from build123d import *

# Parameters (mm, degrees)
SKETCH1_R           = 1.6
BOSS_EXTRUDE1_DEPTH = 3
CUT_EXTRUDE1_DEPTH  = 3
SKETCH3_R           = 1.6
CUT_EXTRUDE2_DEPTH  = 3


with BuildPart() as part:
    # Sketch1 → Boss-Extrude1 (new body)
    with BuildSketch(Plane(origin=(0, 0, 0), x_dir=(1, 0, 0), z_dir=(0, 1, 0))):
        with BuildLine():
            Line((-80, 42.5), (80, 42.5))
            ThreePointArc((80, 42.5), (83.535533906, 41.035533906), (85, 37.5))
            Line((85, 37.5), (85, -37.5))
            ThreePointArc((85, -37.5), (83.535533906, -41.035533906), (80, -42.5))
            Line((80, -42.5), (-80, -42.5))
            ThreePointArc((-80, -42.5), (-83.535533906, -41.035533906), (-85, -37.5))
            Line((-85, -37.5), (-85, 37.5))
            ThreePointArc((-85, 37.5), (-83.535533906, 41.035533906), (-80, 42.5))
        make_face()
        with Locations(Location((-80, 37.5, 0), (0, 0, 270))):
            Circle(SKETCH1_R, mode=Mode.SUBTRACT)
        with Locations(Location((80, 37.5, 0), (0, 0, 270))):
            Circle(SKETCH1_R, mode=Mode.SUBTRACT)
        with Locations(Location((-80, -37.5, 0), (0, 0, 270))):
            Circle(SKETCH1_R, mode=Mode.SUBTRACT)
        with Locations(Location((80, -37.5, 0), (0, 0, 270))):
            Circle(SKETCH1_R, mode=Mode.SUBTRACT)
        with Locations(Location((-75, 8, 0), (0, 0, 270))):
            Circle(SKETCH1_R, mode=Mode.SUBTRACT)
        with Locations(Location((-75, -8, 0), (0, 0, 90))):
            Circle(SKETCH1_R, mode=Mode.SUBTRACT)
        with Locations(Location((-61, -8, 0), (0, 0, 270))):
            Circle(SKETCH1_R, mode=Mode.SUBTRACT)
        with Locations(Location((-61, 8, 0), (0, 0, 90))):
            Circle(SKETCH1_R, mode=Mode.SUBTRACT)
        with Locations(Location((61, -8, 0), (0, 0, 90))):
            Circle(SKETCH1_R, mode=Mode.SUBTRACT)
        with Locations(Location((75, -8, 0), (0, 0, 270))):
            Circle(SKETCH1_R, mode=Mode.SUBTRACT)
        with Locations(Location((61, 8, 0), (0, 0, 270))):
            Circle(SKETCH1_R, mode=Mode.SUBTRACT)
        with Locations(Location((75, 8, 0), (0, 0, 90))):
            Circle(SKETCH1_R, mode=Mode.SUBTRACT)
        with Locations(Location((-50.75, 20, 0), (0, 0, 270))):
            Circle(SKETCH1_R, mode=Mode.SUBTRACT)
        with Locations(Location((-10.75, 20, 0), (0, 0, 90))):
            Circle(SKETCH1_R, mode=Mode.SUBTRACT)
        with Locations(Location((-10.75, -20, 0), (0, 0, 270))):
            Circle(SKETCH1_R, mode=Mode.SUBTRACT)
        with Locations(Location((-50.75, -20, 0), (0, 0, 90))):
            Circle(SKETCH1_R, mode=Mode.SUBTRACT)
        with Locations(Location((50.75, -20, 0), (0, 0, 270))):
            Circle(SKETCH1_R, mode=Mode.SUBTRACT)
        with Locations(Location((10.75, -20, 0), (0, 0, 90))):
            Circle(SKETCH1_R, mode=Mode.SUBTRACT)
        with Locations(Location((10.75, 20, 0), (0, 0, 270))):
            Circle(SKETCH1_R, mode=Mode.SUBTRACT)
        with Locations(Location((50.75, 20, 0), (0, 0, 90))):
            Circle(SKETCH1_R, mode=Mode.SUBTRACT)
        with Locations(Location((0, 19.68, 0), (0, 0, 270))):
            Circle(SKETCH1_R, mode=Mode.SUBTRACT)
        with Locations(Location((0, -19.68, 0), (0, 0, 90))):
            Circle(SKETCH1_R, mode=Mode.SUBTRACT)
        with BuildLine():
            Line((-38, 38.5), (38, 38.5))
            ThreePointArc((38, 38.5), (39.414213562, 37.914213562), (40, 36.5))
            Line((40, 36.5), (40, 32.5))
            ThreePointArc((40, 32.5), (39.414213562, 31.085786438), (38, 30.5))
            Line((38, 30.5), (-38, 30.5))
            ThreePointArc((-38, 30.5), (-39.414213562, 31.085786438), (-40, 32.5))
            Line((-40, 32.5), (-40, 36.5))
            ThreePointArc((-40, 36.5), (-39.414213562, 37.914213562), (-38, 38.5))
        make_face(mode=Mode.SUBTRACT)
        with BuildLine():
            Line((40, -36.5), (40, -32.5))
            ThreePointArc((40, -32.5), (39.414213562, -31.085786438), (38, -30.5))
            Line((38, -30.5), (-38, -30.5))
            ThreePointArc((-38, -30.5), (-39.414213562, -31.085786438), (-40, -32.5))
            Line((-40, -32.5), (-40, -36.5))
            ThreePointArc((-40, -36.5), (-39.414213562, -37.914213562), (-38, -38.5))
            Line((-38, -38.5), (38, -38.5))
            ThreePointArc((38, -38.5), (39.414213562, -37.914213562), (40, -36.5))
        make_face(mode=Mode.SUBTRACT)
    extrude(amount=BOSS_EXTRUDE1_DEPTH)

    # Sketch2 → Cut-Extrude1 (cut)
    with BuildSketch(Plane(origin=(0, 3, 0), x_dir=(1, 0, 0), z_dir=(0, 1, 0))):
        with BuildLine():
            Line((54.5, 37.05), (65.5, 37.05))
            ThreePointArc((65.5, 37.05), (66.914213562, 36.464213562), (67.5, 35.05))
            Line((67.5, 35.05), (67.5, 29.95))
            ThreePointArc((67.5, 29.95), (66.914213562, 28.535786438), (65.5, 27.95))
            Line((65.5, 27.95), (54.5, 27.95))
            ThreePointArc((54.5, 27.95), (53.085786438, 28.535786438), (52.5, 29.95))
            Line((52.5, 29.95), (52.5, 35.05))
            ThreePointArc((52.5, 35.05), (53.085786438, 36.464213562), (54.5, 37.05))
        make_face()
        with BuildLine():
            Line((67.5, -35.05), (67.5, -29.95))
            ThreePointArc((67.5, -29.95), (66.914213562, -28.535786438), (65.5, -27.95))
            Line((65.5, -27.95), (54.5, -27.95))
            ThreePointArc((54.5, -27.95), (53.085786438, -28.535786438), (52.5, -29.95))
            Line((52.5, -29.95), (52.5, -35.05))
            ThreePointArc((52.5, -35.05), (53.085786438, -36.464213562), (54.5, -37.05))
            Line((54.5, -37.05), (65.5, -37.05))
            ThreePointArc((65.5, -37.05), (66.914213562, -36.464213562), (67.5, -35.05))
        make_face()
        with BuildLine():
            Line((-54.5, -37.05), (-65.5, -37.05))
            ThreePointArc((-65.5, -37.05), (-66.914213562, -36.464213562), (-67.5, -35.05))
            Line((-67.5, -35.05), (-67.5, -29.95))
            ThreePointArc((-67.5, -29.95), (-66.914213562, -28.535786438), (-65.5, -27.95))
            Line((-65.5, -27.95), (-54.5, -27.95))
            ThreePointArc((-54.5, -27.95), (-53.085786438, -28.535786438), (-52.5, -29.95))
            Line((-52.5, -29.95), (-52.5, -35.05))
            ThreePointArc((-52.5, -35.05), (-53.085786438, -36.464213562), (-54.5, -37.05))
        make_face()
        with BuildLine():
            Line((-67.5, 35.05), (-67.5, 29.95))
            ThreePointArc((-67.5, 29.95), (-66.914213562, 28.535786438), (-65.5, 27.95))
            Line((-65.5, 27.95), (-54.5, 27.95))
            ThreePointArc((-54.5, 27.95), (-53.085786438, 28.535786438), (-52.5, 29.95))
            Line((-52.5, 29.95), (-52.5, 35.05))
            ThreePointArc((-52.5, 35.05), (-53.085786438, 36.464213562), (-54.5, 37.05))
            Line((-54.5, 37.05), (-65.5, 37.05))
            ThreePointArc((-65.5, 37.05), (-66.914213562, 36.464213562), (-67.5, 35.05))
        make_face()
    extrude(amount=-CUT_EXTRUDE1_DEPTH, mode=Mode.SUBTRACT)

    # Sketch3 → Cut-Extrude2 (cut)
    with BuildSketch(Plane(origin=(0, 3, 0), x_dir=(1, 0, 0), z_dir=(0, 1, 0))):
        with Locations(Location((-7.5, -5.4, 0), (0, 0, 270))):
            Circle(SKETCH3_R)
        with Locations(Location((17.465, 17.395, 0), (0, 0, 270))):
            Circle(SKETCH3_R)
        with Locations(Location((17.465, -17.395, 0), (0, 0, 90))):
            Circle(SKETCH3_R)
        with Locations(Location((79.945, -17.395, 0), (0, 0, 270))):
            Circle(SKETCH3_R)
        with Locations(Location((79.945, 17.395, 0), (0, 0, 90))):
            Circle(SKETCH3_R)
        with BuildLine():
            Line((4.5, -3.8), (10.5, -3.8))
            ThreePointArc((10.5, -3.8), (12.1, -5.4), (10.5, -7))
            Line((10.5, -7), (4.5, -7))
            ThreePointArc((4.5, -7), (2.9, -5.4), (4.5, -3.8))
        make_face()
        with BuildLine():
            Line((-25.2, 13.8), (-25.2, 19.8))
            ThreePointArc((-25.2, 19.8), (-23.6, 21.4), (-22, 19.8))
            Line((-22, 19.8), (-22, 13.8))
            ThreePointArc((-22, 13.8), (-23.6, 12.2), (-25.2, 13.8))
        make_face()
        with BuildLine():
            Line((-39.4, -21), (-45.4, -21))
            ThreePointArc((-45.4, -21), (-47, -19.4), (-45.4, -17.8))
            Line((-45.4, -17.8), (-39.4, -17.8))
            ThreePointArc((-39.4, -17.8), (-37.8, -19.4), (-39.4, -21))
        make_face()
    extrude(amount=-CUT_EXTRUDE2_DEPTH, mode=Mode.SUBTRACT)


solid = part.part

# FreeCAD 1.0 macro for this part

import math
import FreeCAD as App
import Part
import Sketcher

V = App.Vector

doc = App.newDocument("Part")
params = doc.addObject("Spreadsheet::Sheet", "Params")
for row, (alias, value) in enumerate([
    ("sketch1_radius", "5 mm"),
    ("sketch1_radius2", "2 mm"),
    ("sketch1_diameter", "3.2 mm"),
    ("sketch1_width", "160 mm"),
    ("sketch1_width2", "76 mm"),
    ("pad1_length", "3 mm"),
    ("sketch2_radius", "2 mm"),
    ("sketch2_width", "11 mm"),
    ("sketch2_height", "5.1 mm"),
    ("pocket1_length", "3 mm"),
    ("sketch3_diameter", "3.2 mm"),
    ("sketch3_width", "6 mm"),
    ("pocket2_length", "3 mm"),
], start=1):
    params.set(f"A{row}", alias)
    params.set(f"B{row}", "=" + value)
    params.setAlias(f"B{row}", alias)

body = doc.addObject("PartDesign::Body", "Body")

# Sketch on XZ plane
sketch1 = doc.addObject("Sketcher::SketchObject", "Sketch")
body.addObject(sketch1)
sketch1.AttachmentSupport = (doc.XZ_Plane, [""])
sketch1.MapMode = "FlatFace"
sketch1.addGeometry(Part.LineSegment(V(80, -42.5, 0), V(-80, -42.5, 0)), False)
sketch1.addGeometry(Part.ArcOfCircle(Part.Circle(V(-80, -37.5, 0), V(0, 0, 1), 5), math.radians(180), math.radians(270)), False)
sketch1.addGeometry(Part.LineSegment(V(-85, -37.5, 0), V(-85, 37.5, 0)), False)
sketch1.addGeometry(Part.ArcOfCircle(Part.Circle(V(-80, 37.5, 0), V(0, 0, 1), 5), math.radians(90), math.radians(180)), False)
sketch1.addGeometry(Part.LineSegment(V(-80, 42.5, 0), V(80, 42.5, 0)), False)
sketch1.addGeometry(Part.ArcOfCircle(Part.Circle(V(80, 37.5, 0), V(0, 0, 1), 5), math.radians(0), math.radians(90)), False)
sketch1.addGeometry(Part.LineSegment(V(85, 37.5, 0), V(85, -37.5, 0)), False)
sketch1.addGeometry(Part.ArcOfCircle(Part.Circle(V(80, -37.5, 0), V(0, 0, 1), 5), math.radians(-90), math.radians(0)), False)
sketch1.addGeometry(Part.Circle(V(80, 37.5, 0), V(0, 0, 1), 1.6), False)
sketch1.addGeometry(Part.Circle(V(50.8, 20, 0), V(0, 0, 1), 1.6), False)
sketch1.addGeometry(Part.Circle(V(10.8, 20, 0), V(0, 0, 1), 1.6), False)
sketch1.addGeometry(Part.Circle(V(75, 8, 0), V(0, 0, 1), 1.6), False)
sketch1.addGeometry(Part.Circle(V(61, 8, 0), V(0, 0, 1), 1.6), False)
sketch1.addGeometry(Part.ArcOfCircle(Part.Circle(V(38, 36.5, 0), V(0, 0, 1), 2), math.radians(0), math.radians(90)), False)
sketch1.addGeometry(Part.LineSegment(V(38, 38.5, 0), V(-38, 38.5, 0)), False)
sketch1.addGeometry(Part.ArcOfCircle(Part.Circle(V(-38, 36.5, 0), V(0, 0, 1), 2), math.radians(90), math.radians(180)), False)
sketch1.addGeometry(Part.LineSegment(V(-40, 36.5, 0), V(-40, 32.5, 0)), False)
sketch1.addGeometry(Part.ArcOfCircle(Part.Circle(V(-38, 32.5, 0), V(0, 0, 1), 2), math.radians(-180), math.radians(-90)), False)
sketch1.addGeometry(Part.LineSegment(V(-38, 30.5, 0), V(38, 30.5, 0)), False)
sketch1.addGeometry(Part.ArcOfCircle(Part.Circle(V(38, 32.5, 0), V(0, 0, 1), 2), math.radians(-90), math.radians(0)), False)
sketch1.addGeometry(Part.LineSegment(V(40, 32.5, 0), V(40, 36.5, 0)), False)
sketch1.addGeometry(Part.Circle(V(0, 19.7, 0), V(0, 0, 1), 1.6), False)
sketch1.addGeometry(Part.Circle(V(-10.8, 20, 0), V(0, 0, 1), 1.6), False)
sketch1.addGeometry(Part.Circle(V(-80, 37.5, 0), V(0, 0, 1), 1.6), False)
sketch1.addGeometry(Part.Circle(V(-50.8, 20, 0), V(0, 0, 1), 1.6), False)
sketch1.addGeometry(Part.Circle(V(-61, 8, 0), V(0, 0, 1), 1.6), False)
sketch1.addGeometry(Part.Circle(V(-75, 8, 0), V(0, 0, 1), 1.6), False)
sketch1.addGeometry(Part.Circle(V(75, -8, 0), V(0, 0, 1), 1.6), False)
sketch1.addGeometry(Part.Circle(V(61, -8, 0), V(0, 0, 1), 1.6), False)
sketch1.addGeometry(Part.Circle(V(50.8, -20, 0), V(0, 0, 1), 1.6), False)
sketch1.addGeometry(Part.Circle(V(80, -37.5, 0), V(0, 0, 1), 1.6), False)
sketch1.addGeometry(Part.Circle(V(10.8, -20, 0), V(0, 0, 1), 1.6), False)
sketch1.addGeometry(Part.Circle(V(-61, -8, 0), V(0, 0, 1), 1.6), False)
sketch1.addGeometry(Part.Circle(V(-75, -8, 0), V(0, 0, 1), 1.6), False)
sketch1.addGeometry(Part.Circle(V(0, -19.7, 0), V(0, 0, 1), 1.6), False)
sketch1.addGeometry(Part.Circle(V(-10.8, -20, 0), V(0, 0, 1), 1.6), False)
sketch1.addGeometry(Part.LineSegment(V(-38, -38.5, 0), V(38, -38.5, 0)), False)
sketch1.addGeometry(Part.ArcOfCircle(Part.Circle(V(38, -36.5, 0), V(0, 0, 1), 2), math.radians(-90), math.radians(0)), False)
sketch1.addGeometry(Part.LineSegment(V(40, -36.5, 0), V(40, -32.5, 0)), False)
sketch1.addGeometry(Part.ArcOfCircle(Part.Circle(V(38, -32.5, 0), V(0, 0, 1), 2), math.radians(0), math.radians(90)), False)
sketch1.addGeometry(Part.LineSegment(V(38, -30.5, 0), V(-38, -30.5, 0)), False)
sketch1.addGeometry(Part.ArcOfCircle(Part.Circle(V(-38, -32.5, 0), V(0, 0, 1), 2), math.radians(90), math.radians(180)), False)
sketch1.addGeometry(Part.LineSegment(V(-40, -32.5, 0), V(-40, -36.5, 0)), False)
sketch1.addGeometry(Part.ArcOfCircle(Part.Circle(V(-38, -36.5, 0), V(0, 0, 1), 2), math.radians(-180), math.radians(-90)), False)
sketch1.addGeometry(Part.Circle(V(-50.8, -20, 0), V(0, 0, 1), 1.6), False)
sketch1.addGeometry(Part.Circle(V(-80, -37.5, 0), V(0, 0, 1), 1.6), False)
sketch1.addConstraint(Sketcher.Constraint("Tangent", 0, 2, 1, 2))
sketch1.addConstraint(Sketcher.Constraint("Tangent", 1, 1, 2, 1))
sketch1.addConstraint(Sketcher.Constraint("Tangent", 2, 2, 3, 2))
sketch1.addConstraint(Sketcher.Constraint("Tangent", 3, 1, 4, 1))
sketch1.addConstraint(Sketcher.Constraint("Tangent", 4, 2, 5, 2))
sketch1.addConstraint(Sketcher.Constraint("Tangent", 5, 1, 6, 1))
sketch1.addConstraint(Sketcher.Constraint("Tangent", 6, 2, 7, 2))
sketch1.addConstraint(Sketcher.Constraint("Tangent", 7, 1, 0, 1))
sketch1.addConstraint(Sketcher.Constraint("Tangent", 13, 2, 14, 1))
sketch1.addConstraint(Sketcher.Constraint("Tangent", 14, 2, 15, 1))
sketch1.addConstraint(Sketcher.Constraint("Tangent", 15, 2, 16, 1))
sketch1.addConstraint(Sketcher.Constraint("Tangent", 16, 2, 17, 1))
sketch1.addConstraint(Sketcher.Constraint("Tangent", 17, 2, 18, 1))
sketch1.addConstraint(Sketcher.Constraint("Tangent", 18, 2, 19, 1))
sketch1.addConstraint(Sketcher.Constraint("Tangent", 19, 2, 20, 1))
sketch1.addConstraint(Sketcher.Constraint("Tangent", 20, 2, 13, 1))
sketch1.addConstraint(Sketcher.Constraint("Tangent", 36, 2, 37, 1))
sketch1.addConstraint(Sketcher.Constraint("Tangent", 37, 2, 38, 1))
sketch1.addConstraint(Sketcher.Constraint("Tangent", 38, 2, 39, 1))
sketch1.addConstraint(Sketcher.Constraint("Tangent", 39, 2, 40, 1))
sketch1.addConstraint(Sketcher.Constraint("Tangent", 40, 2, 41, 1))
sketch1.addConstraint(Sketcher.Constraint("Tangent", 41, 2, 42, 1))
sketch1.addConstraint(Sketcher.Constraint("Tangent", 42, 2, 43, 1))
sketch1.addConstraint(Sketcher.Constraint("Tangent", 43, 2, 36, 1))
sketch1.addConstraint(Sketcher.Constraint("Horizontal", 0))
sketch1.addConstraint(Sketcher.Constraint("Vertical", 2))
sketch1.addConstraint(Sketcher.Constraint("Horizontal", 4))
sketch1.addConstraint(Sketcher.Constraint("Vertical", 6))
sketch1.addConstraint(Sketcher.Constraint("Horizontal", 14))
sketch1.addConstraint(Sketcher.Constraint("Vertical", 16))
sketch1.addConstraint(Sketcher.Constraint("Horizontal", 18))
sketch1.addConstraint(Sketcher.Constraint("Vertical", 20))
sketch1.addConstraint(Sketcher.Constraint("Horizontal", 36))
sketch1.addConstraint(Sketcher.Constraint("Vertical", 38))
sketch1.addConstraint(Sketcher.Constraint("Horizontal", 40))
sketch1.addConstraint(Sketcher.Constraint("Vertical", 42))
sketch1.addConstraint(Sketcher.Constraint("Coincident", 8, 3, 5, 3))
sketch1.addConstraint(Sketcher.Constraint("Coincident", 23, 3, 3, 3))
sketch1.addConstraint(Sketcher.Constraint("Coincident", 30, 3, 7, 3))
sketch1.addConstraint(Sketcher.Constraint("Coincident", 45, 3, 1, 3))
sketch1.addConstraint(Sketcher.Constraint("Equal", 1, 3))
sketch1.addConstraint(Sketcher.Constraint("Equal", 3, 5))
sketch1.addConstraint(Sketcher.Constraint("Equal", 5, 7))
sketch1.addConstraint(Sketcher.Constraint("Equal", 8, 9))
sketch1.addConstraint(Sketcher.Constraint("Equal", 9, 10))
sketch1.addConstraint(Sketcher.Constraint("Equal", 10, 11))
sketch1.addConstraint(Sketcher.Constraint("Equal", 11, 12))
sketch1.addConstraint(Sketcher.Constraint("Equal", 13, 15))
sketch1.addConstraint(Sketcher.Constraint("Equal", 15, 17))
sketch1.addConstraint(Sketcher.Constraint("Equal", 17, 19))
sketch1.addConstraint(Sketcher.Constraint("Equal", 12, 21))
sketch1.addConstraint(Sketcher.Constraint("Equal", 21, 22))
sketch1.addConstraint(Sketcher.Constraint("Equal", 22, 23))
sketch1.addConstraint(Sketcher.Constraint("Equal", 23, 24))
sketch1.addConstraint(Sketcher.Constraint("Equal", 24, 25))
sketch1.addConstraint(Sketcher.Constraint("Equal", 25, 26))
sketch1.addConstraint(Sketcher.Constraint("Equal", 26, 27))
sketch1.addConstraint(Sketcher.Constraint("Equal", 27, 28))
sketch1.addConstraint(Sketcher.Constraint("Equal", 28, 29))
sketch1.addConstraint(Sketcher.Constraint("Equal", 29, 30))
sketch1.addConstraint(Sketcher.Constraint("Equal", 30, 31))
sketch1.addConstraint(Sketcher.Constraint("Equal", 31, 32))
sketch1.addConstraint(Sketcher.Constraint("Equal", 32, 33))
sketch1.addConstraint(Sketcher.Constraint("Equal", 33, 34))
sketch1.addConstraint(Sketcher.Constraint("Equal", 34, 35))
sketch1.addConstraint(Sketcher.Constraint("Equal", 19, 37))
sketch1.addConstraint(Sketcher.Constraint("Equal", 37, 39))
sketch1.addConstraint(Sketcher.Constraint("Equal", 39, 41))
sketch1.addConstraint(Sketcher.Constraint("Equal", 41, 43))
sketch1.addConstraint(Sketcher.Constraint("Equal", 35, 44))
sketch1.addConstraint(Sketcher.Constraint("Equal", 44, 45))
sketch1.addConstraint(Sketcher.Constraint("Symmetric", 1, 3, 5, 3, -1, 1))
sketch1.addConstraint(Sketcher.Constraint("Symmetric", 26, 3, 27, 3, -1, 1))
sketch1.addConstraint(Sketcher.Constraint("Symmetric", 25, 3, 28, 3, -1, 1))
sketch1.addConstraint(Sketcher.Constraint("Symmetric", 24, 3, 29, 3, -1, 1))
sketch1.addConstraint(Sketcher.Constraint("Symmetric", 22, 3, 31, 3, -1, 1))
sketch1.addConstraint(Sketcher.Constraint("Symmetric", 12, 3, 32, 3, -1, 1))
sketch1.addConstraint(Sketcher.Constraint("Symmetric", 11, 3, 33, 3, -1, 1))
sketch1.addConstraint(Sketcher.Constraint("Symmetric", 21, 3, 34, 3, -1, 1))
sketch1.addConstraint(Sketcher.Constraint("Symmetric", 10, 3, 35, 3, -1, 1))
sketch1.addConstraint(Sketcher.Constraint("Symmetric", 15, 3, 37, 3, -1, 1))
sketch1.addConstraint(Sketcher.Constraint("Symmetric", 19, 3, 41, 3, -1, 1))
sketch1.addConstraint(Sketcher.Constraint("Symmetric", 9, 3, 44, 3, -1, 1))
sketch1.addConstraint(Sketcher.Constraint("Symmetric", 10, 3, 22, 3, -2))
sketch1.addConstraint(Sketcher.Constraint("Symmetric", 9, 3, 24, 3, -2))
sketch1.addConstraint(Sketcher.Constraint("Symmetric", 12, 3, 25, 3, -2))
sketch1.addConstraint(Sketcher.Constraint("Symmetric", 11, 3, 26, 3, -2))
sketch1.addConstraint(Sketcher.Constraint("PointOnObject", 21, 3, -2))
sketch1.addConstraint(Sketcher.Constraint("Horizontal", 9, 3, 10, 3))
sketch1.addConstraint(Sketcher.Constraint("Horizontal", 11, 3, 12, 3))
sketch1.addConstraint(Sketcher.Constraint("Vertical", 19, 3, 37, 3))
sketch1.addConstraint(Sketcher.Constraint("Radius", 1, 5.0))
sketch1.addConstraint(Sketcher.Constraint("Radius", 13, 2.0))
sketch1.addConstraint(Sketcher.Constraint("Diameter", 8, 3.2))
sketch1.addConstraint(Sketcher.Constraint("DistanceX", 0, 2, 0, 1, 160.0))
sketch1.addConstraint(Sketcher.Constraint("DistanceX", 14, 2, 14, 1, 76.0))
sketch1.addConstraint(Sketcher.Constraint("DistanceY", 2, 1, 2, 2, 75.0))
sketch1.addConstraint(Sketcher.Constraint("DistanceY", 16, 2, 16, 1, 4.0))
sketch1.addConstraint(Sketcher.Constraint("DistanceY", -1, 1, 9, 3, 20.0))
sketch1.addConstraint(Sketcher.Constraint("DistanceX", -1, 1, 11, 3, 75.0))
sketch1.addConstraint(Sketcher.Constraint("DistanceY", -1, 1, 11, 3, 8.0))
sketch1.addConstraint(Sketcher.Constraint("DistanceX", -1, 1, 12, 3, 61.0))
sketch1.addConstraint(Sketcher.Constraint("DistanceX", 10, 3, 9, 3, 40.0))
sketch1.addConstraint(Sketcher.Constraint("DistanceY", 13, 3, 5, 3, 1.0))
sketch1.addConstraint(Sketcher.Constraint("DistanceX", 22, 3, 10, 3, 21.5))
sketch1.addConstraint(Sketcher.Constraint("DistanceY", -1, 1, 21, 3, 19.68))
sketch1.setExpression("Constraints[91]", "Params.sketch1_radius")
sketch1.setExpression("Constraints[92]", "Params.sketch1_radius2")
sketch1.setExpression("Constraints[93]", "Params.sketch1_diameter")
sketch1.setExpression("Constraints[94]", "Params.sketch1_width")
sketch1.setExpression("Constraints[95]", "Params.sketch1_width2")
pad1 = doc.addObject("PartDesign::Pad", "Pad")
body.addObject(pad1)
pad1.Profile = sketch1
pad1.setExpression("Length", "Params.pad1_length")
pad1.Reversed = True

# Sketch on XZ plane
sketch2 = doc.addObject("Sketcher::SketchObject", "Sketch001")
body.addObject(sketch2)
sketch2.AttachmentSupport = (doc.XZ_Plane, [""])
sketch2.MapMode = "FlatFace"
sketch2.AttachmentOffset = App.Placement(V(0, 0, -3), App.Rotation())
sketch2.addGeometry(Part.LineSegment(V(65.5, -37, 0), V(54.5, -37, 0)), False)
sketch2.addGeometry(Part.ArcOfCircle(Part.Circle(V(54.5, -35, 0), V(0, 0, 1), 2), math.radians(-180), math.radians(-90)), False)
sketch2.addGeometry(Part.LineSegment(V(52.5, -35, 0), V(52.5, -29.9, 0)), False)
sketch2.addGeometry(Part.ArcOfCircle(Part.Circle(V(54.5, -30, 0), V(0, 0, 1), 2), math.radians(90), math.radians(180)), False)
sketch2.addGeometry(Part.LineSegment(V(54.5, -27.9, 0), V(65.5, -27.9, 0)), False)
sketch2.addGeometry(Part.ArcOfCircle(Part.Circle(V(65.5, -30, 0), V(0, 0, 1), 2), math.radians(0), math.radians(90)), False)
sketch2.addGeometry(Part.LineSegment(V(67.5, -29.9, 0), V(67.5, -35, 0)), False)
sketch2.addGeometry(Part.ArcOfCircle(Part.Circle(V(65.5, -35, 0), V(0, 0, 1), 2), math.radians(-90), math.radians(0)), False)
sketch2.addGeometry(Part.LineSegment(V(67.5, 35, 0), V(67.5, 29.9, 0)), False)
sketch2.addGeometry(Part.ArcOfCircle(Part.Circle(V(65.5, 30, 0), V(0, 0, 1), 2), math.radians(-90), math.radians(0)), False)
sketch2.addGeometry(Part.LineSegment(V(65.5, 27.9, 0), V(54.5, 27.9, 0)), False)
sketch2.addGeometry(Part.ArcOfCircle(Part.Circle(V(54.5, 30, 0), V(0, 0, 1), 2), math.radians(-180), math.radians(-90)), False)
sketch2.addGeometry(Part.LineSegment(V(52.5, 29.9, 0), V(52.5, 35, 0)), False)
sketch2.addGeometry(Part.ArcOfCircle(Part.Circle(V(54.5, 35, 0), V(0, 0, 1), 2), math.radians(90), math.radians(180)), False)
sketch2.addGeometry(Part.LineSegment(V(54.5, 37, 0), V(65.5, 37, 0)), False)
sketch2.addGeometry(Part.ArcOfCircle(Part.Circle(V(65.5, 35, 0), V(0, 0, 1), 2), math.radians(0), math.radians(90)), False)
sketch2.addGeometry(Part.LineSegment(V(-65.5, 37, 0), V(-54.5, 37, 0)), False)
sketch2.addGeometry(Part.ArcOfCircle(Part.Circle(V(-54.5, 35, 0), V(0, 0, 1), 2), math.radians(0), math.radians(90)), False)
sketch2.addGeometry(Part.LineSegment(V(-52.5, 35, 0), V(-52.5, 29.9, 0)), False)
sketch2.addGeometry(Part.ArcOfCircle(Part.Circle(V(-54.5, 30, 0), V(0, 0, 1), 2), math.radians(-90), math.radians(0)), False)
sketch2.addGeometry(Part.LineSegment(V(-54.5, 27.9, 0), V(-65.5, 27.9, 0)), False)
sketch2.addGeometry(Part.ArcOfCircle(Part.Circle(V(-65.5, 30, 0), V(0, 0, 1), 2), math.radians(-180), math.radians(-90)), False)
sketch2.addGeometry(Part.LineSegment(V(-67.5, 29.9, 0), V(-67.5, 35, 0)), False)
sketch2.addGeometry(Part.ArcOfCircle(Part.Circle(V(-65.5, 35, 0), V(0, 0, 1), 2), math.radians(90), math.radians(180)), False)
sketch2.addGeometry(Part.LineSegment(V(-67.5, -35, 0), V(-67.5, -29.9, 0)), False)
sketch2.addGeometry(Part.ArcOfCircle(Part.Circle(V(-65.5, -30, 0), V(0, 0, 1), 2), math.radians(90), math.radians(180)), False)
sketch2.addGeometry(Part.LineSegment(V(-65.5, -27.9, 0), V(-54.5, -27.9, 0)), False)
sketch2.addGeometry(Part.ArcOfCircle(Part.Circle(V(-54.5, -30, 0), V(0, 0, 1), 2), math.radians(0), math.radians(90)), False)
sketch2.addGeometry(Part.LineSegment(V(-52.5, -29.9, 0), V(-52.5, -35, 0)), False)
sketch2.addGeometry(Part.ArcOfCircle(Part.Circle(V(-54.5, -35, 0), V(0, 0, 1), 2), math.radians(-90), math.radians(0)), False)
sketch2.addGeometry(Part.LineSegment(V(-54.5, -37, 0), V(-65.5, -37, 0)), False)
sketch2.addGeometry(Part.ArcOfCircle(Part.Circle(V(-65.5, -35, 0), V(0, 0, 1), 2), math.radians(-180), math.radians(-90)), False)
sketch2.addConstraint(Sketcher.Constraint("Tangent", 0, 2, 1, 2))
sketch2.addConstraint(Sketcher.Constraint("Tangent", 1, 1, 2, 1))
sketch2.addConstraint(Sketcher.Constraint("Tangent", 2, 2, 3, 2))
sketch2.addConstraint(Sketcher.Constraint("Tangent", 3, 1, 4, 1))
sketch2.addConstraint(Sketcher.Constraint("Tangent", 4, 2, 5, 2))
sketch2.addConstraint(Sketcher.Constraint("Tangent", 5, 1, 6, 1))
sketch2.addConstraint(Sketcher.Constraint("Tangent", 6, 2, 7, 2))
sketch2.addConstraint(Sketcher.Constraint("Tangent", 7, 1, 0, 1))
sketch2.addConstraint(Sketcher.Constraint("Tangent", 8, 2, 9, 2))
sketch2.addConstraint(Sketcher.Constraint("Tangent", 9, 1, 10, 1))
sketch2.addConstraint(Sketcher.Constraint("Tangent", 10, 2, 11, 2))
sketch2.addConstraint(Sketcher.Constraint("Tangent", 11, 1, 12, 1))
sketch2.addConstraint(Sketcher.Constraint("Tangent", 12, 2, 13, 2))
sketch2.addConstraint(Sketcher.Constraint("Tangent", 13, 1, 14, 1))
sketch2.addConstraint(Sketcher.Constraint("Tangent", 14, 2, 15, 2))
sketch2.addConstraint(Sketcher.Constraint("Tangent", 15, 1, 8, 1))
sketch2.addConstraint(Sketcher.Constraint("Tangent", 16, 2, 17, 2))
sketch2.addConstraint(Sketcher.Constraint("Tangent", 17, 1, 18, 1))
sketch2.addConstraint(Sketcher.Constraint("Tangent", 18, 2, 19, 2))
sketch2.addConstraint(Sketcher.Constraint("Tangent", 19, 1, 20, 1))
sketch2.addConstraint(Sketcher.Constraint("Tangent", 20, 2, 21, 2))
sketch2.addConstraint(Sketcher.Constraint("Tangent", 21, 1, 22, 1))
sketch2.addConstraint(Sketcher.Constraint("Tangent", 22, 2, 23, 2))
sketch2.addConstraint(Sketcher.Constraint("Tangent", 23, 1, 16, 1))
sketch2.addConstraint(Sketcher.Constraint("Tangent", 24, 2, 25, 2))
sketch2.addConstraint(Sketcher.Constraint("Tangent", 25, 1, 26, 1))
sketch2.addConstraint(Sketcher.Constraint("Tangent", 26, 2, 27, 2))
sketch2.addConstraint(Sketcher.Constraint("Tangent", 27, 1, 28, 1))
sketch2.addConstraint(Sketcher.Constraint("Tangent", 28, 2, 29, 2))
sketch2.addConstraint(Sketcher.Constraint("Tangent", 29, 1, 30, 1))
sketch2.addConstraint(Sketcher.Constraint("Tangent", 30, 2, 31, 2))
sketch2.addConstraint(Sketcher.Constraint("Tangent", 31, 1, 24, 1))
sketch2.addConstraint(Sketcher.Constraint("Horizontal", 0))
sketch2.addConstraint(Sketcher.Constraint("Vertical", 2))
sketch2.addConstraint(Sketcher.Constraint("Horizontal", 4))
sketch2.addConstraint(Sketcher.Constraint("Vertical", 6))
sketch2.addConstraint(Sketcher.Constraint("Vertical", 8))
sketch2.addConstraint(Sketcher.Constraint("Horizontal", 10))
sketch2.addConstraint(Sketcher.Constraint("Vertical", 12))
sketch2.addConstraint(Sketcher.Constraint("Horizontal", 14))
sketch2.addConstraint(Sketcher.Constraint("Horizontal", 16))
sketch2.addConstraint(Sketcher.Constraint("Vertical", 18))
sketch2.addConstraint(Sketcher.Constraint("Horizontal", 20))
sketch2.addConstraint(Sketcher.Constraint("Vertical", 22))
sketch2.addConstraint(Sketcher.Constraint("Vertical", 24))
sketch2.addConstraint(Sketcher.Constraint("Horizontal", 26))
sketch2.addConstraint(Sketcher.Constraint("Vertical", 28))
sketch2.addConstraint(Sketcher.Constraint("Horizontal", 30))
sketch2.addConstraint(Sketcher.Constraint("Equal", 1, 3))
sketch2.addConstraint(Sketcher.Constraint("Equal", 3, 5))
sketch2.addConstraint(Sketcher.Constraint("Equal", 5, 7))
sketch2.addConstraint(Sketcher.Constraint("Equal", 7, 9))
sketch2.addConstraint(Sketcher.Constraint("Equal", 9, 11))
sketch2.addConstraint(Sketcher.Constraint("Equal", 11, 13))
sketch2.addConstraint(Sketcher.Constraint("Equal", 13, 15))
sketch2.addConstraint(Sketcher.Constraint("Equal", 15, 17))
sketch2.addConstraint(Sketcher.Constraint("Equal", 17, 19))
sketch2.addConstraint(Sketcher.Constraint("Equal", 19, 21))
sketch2.addConstraint(Sketcher.Constraint("Equal", 21, 23))
sketch2.addConstraint(Sketcher.Constraint("Equal", 23, 25))
sketch2.addConstraint(Sketcher.Constraint("Equal", 25, 27))
sketch2.addConstraint(Sketcher.Constraint("Equal", 27, 29))
sketch2.addConstraint(Sketcher.Constraint("Equal", 29, 31))
sketch2.addConstraint(Sketcher.Constraint("Symmetric", 1, 3, 17, 3, -1, 1))
sketch2.addConstraint(Sketcher.Constraint("Symmetric", 5, 3, 21, 3, -1, 1))
sketch2.addConstraint(Sketcher.Constraint("Symmetric", 9, 3, 25, 3, -1, 1))
sketch2.addConstraint(Sketcher.Constraint("Symmetric", 13, 3, 29, 3, -1, 1))
sketch2.addConstraint(Sketcher.Constraint("Symmetric", 13, 3, 17, 3, -2))
sketch2.addConstraint(Sketcher.Constraint("Symmetric", 9, 3, 21, 3, -2))
sketch2.addConstraint(Sketcher.Constraint("Radius", 1, 2.0))
sketch2.addConstraint(Sketcher.Constraint("DistanceX", 0, 2, 0, 1, 11.0))
sketch2.addConstraint(Sketcher.Constraint("DistanceY", 2, 1, 2, 2, 5.1))
sketch2.addConstraint(Sketcher.Constraint("DistanceY", 7, 3, 9, 3, 65.0))
sketch2.addConstraint(Sketcher.Constraint("DistanceX", 17, 3, 13, 3, 109.0))
sketch2.setExpression("Constraints[69]", "Params.sketch2_radius")
sketch2.setExpression("Constraints[70]", "Params.sketch2_width")
sketch2.setExpression("Constraints[71]", "Params.sketch2_height")
pocket1 = doc.addObject("PartDesign::Pocket", "Pocket")
body.addObject(pocket1)
pocket1.Profile = sketch2
pocket1.setExpression("Length", "Params.pocket1_length")
pocket1.Reversed = True

# Sketch on XZ plane
sketch3 = doc.addObject("Sketcher::SketchObject", "Sketch002")
body.addObject(sketch3)
sketch3.AttachmentSupport = (doc.XZ_Plane, [""])
sketch3.MapMode = "FlatFace"
sketch3.AttachmentOffset = App.Placement(V(0, 0, -3), App.Rotation())
sketch3.addGeometry(Part.Circle(V(-7.5, 5.4, 0), V(0, 0, 1), 1.6), False)
sketch3.addGeometry(Part.Circle(V(17.5, -17.4, 0), V(0, 0, 1), 1.6), False)
sketch3.addGeometry(Part.Circle(V(17.5, 17.4, 0), V(0, 0, 1), 1.6), False)
sketch3.addGeometry(Part.Circle(V(79.9, 17.4, 0), V(0, 0, 1), 1.6), False)
sketch3.addGeometry(Part.Circle(V(79.9, -17.4, 0), V(0, 0, 1), 1.6), False)
sketch3.addGeometry(Part.LineSegment(V(10.5, 3.8, 0), V(4.5, 3.8, 0)), False)
sketch3.addGeometry(Part.ArcOfCircle(Part.Circle(V(4.5, 5.4, 0), V(0, 0, 1), 1.6), math.radians(90), math.radians(270)), False)
sketch3.addGeometry(Part.LineSegment(V(4.5, 7, 0), V(10.5, 7, 0)), False)
sketch3.addGeometry(Part.ArcOfCircle(Part.Circle(V(10.5, 5.4, 0), V(0, 0, 1), 1.6), math.radians(-90), math.radians(90)), False)
sketch3.addGeometry(Part.LineSegment(V(-25.2, -19.8, 0), V(-25.2, -13.8, 0)), False)
sketch3.addGeometry(Part.ArcOfCircle(Part.Circle(V(-23.6, -13.8, 0), V(0, 0, 1), 1.6), math.radians(0), math.radians(180)), False)
sketch3.addGeometry(Part.LineSegment(V(-22, -13.8, 0), V(-22, -19.8, 0)), False)
sketch3.addGeometry(Part.ArcOfCircle(Part.Circle(V(-23.6, -19.8, 0), V(0, 0, 1), 1.6), math.radians(180), math.radians(360)), False)
sketch3.addGeometry(Part.LineSegment(V(-45.4, 21, 0), V(-39.4, 21, 0)), False)
sketch3.addGeometry(Part.ArcOfCircle(Part.Circle(V(-39.4, 19.4, 0), V(0, 0, 1), 1.6), math.radians(-90), math.radians(90)), False)
sketch3.addGeometry(Part.LineSegment(V(-39.4, 17.8, 0), V(-45.4, 17.8, 0)), False)
sketch3.addGeometry(Part.ArcOfCircle(Part.Circle(V(-45.4, 19.4, 0), V(0, 0, 1), 1.6), math.radians(90), math.radians(270)), False)
sketch3.addConstraint(Sketcher.Constraint("Tangent", 5, 2, 6, 2))
sketch3.addConstraint(Sketcher.Constraint("Tangent", 6, 1, 7, 1))
sketch3.addConstraint(Sketcher.Constraint("Tangent", 7, 2, 8, 2))
sketch3.addConstraint(Sketcher.Constraint("Tangent", 8, 1, 5, 1))
sketch3.addConstraint(Sketcher.Constraint("Tangent", 9, 2, 10, 2))
sketch3.addConstraint(Sketcher.Constraint("Tangent", 10, 1, 11, 1))
sketch3.addConstraint(Sketcher.Constraint("Tangent", 11, 2, 12, 2))
sketch3.addConstraint(Sketcher.Constraint("Tangent", 12, 1, 9, 1))
sketch3.addConstraint(Sketcher.Constraint("Tangent", 13, 2, 14, 2))
sketch3.addConstraint(Sketcher.Constraint("Tangent", 14, 1, 15, 1))
sketch3.addConstraint(Sketcher.Constraint("Tangent", 15, 2, 16, 2))
sketch3.addConstraint(Sketcher.Constraint("Tangent", 16, 1, 13, 1))
sketch3.addConstraint(Sketcher.Constraint("Horizontal", 5))
sketch3.addConstraint(Sketcher.Constraint("Horizontal", 7))
sketch3.addConstraint(Sketcher.Constraint("Vertical", 9))
sketch3.addConstraint(Sketcher.Constraint("Vertical", 11))
sketch3.addConstraint(Sketcher.Constraint("Horizontal", 13))
sketch3.addConstraint(Sketcher.Constraint("Horizontal", 15))
sketch3.addConstraint(Sketcher.Constraint("Equal", 0, 1))
sketch3.addConstraint(Sketcher.Constraint("Equal", 1, 2))
sketch3.addConstraint(Sketcher.Constraint("Equal", 2, 3))
sketch3.addConstraint(Sketcher.Constraint("Equal", 3, 4))
sketch3.addConstraint(Sketcher.Constraint("Equal", 4, 6))
sketch3.addConstraint(Sketcher.Constraint("Equal", 8, 10))
sketch3.addConstraint(Sketcher.Constraint("Equal", 12, 14))
sketch3.addConstraint(Sketcher.Constraint("Symmetric", 1, 3, 2, 3, -1))
sketch3.addConstraint(Sketcher.Constraint("Symmetric", 3, 3, 4, 3, -1))
sketch3.addConstraint(Sketcher.Constraint("Horizontal", 2, 3, 3, 3))
sketch3.addConstraint(Sketcher.Constraint("Horizontal", 0, 3, 6, 3))
sketch3.addConstraint(Sketcher.Constraint("Equal", 7, 13))
sketch3.addConstraint(Sketcher.Constraint("Equal", 15, 9))
sketch3.addConstraint(Sketcher.Constraint("Diameter", 0, 3.2))
sketch3.addConstraint(Sketcher.Constraint("DistanceX", 5, 2, 5, 1, 6.0))
sketch3.addConstraint(Sketcher.Constraint("DistanceY", -1, 1, 6, 1, 7.0))
sketch3.addConstraint(Sketcher.Constraint("DistanceX", 10, 1, -1, 1, 22.0))
sketch3.addConstraint(Sketcher.Constraint("DistanceY", -1, 1, 13, 2, 21.0))
sketch3.addConstraint(Sketcher.Constraint("DistanceX", 0, 3, 6, 3, 12.0))
sketch3.addConstraint(Sketcher.Constraint("DistanceX", 0, 3, -1, 1, 7.5))
sketch3.addConstraint(Sketcher.Constraint("DistanceY", 10, 3, -1, 1, 13.8))
sketch3.addConstraint(Sketcher.Constraint("DistanceX", 14, 3, -1, 1, 39.4))
sketch3.addConstraint(Sketcher.Constraint("DistanceY", 1, 3, 2, 3, 34.79))
sketch3.addConstraint(Sketcher.Constraint("DistanceX", 2, 3, 3, 3, 62.48))
sketch3.addConstraint(Sketcher.Constraint("DistanceX", -1, 1, 1, 3, 17.465))
sketch3.setExpression("Constraints[31]", "Params.sketch3_diameter")
sketch3.setExpression("Constraints[32]", "Params.sketch3_width")
pocket2 = doc.addObject("PartDesign::Pocket", "Pocket001")
body.addObject(pocket2)
pocket2.Profile = sketch3
pocket2.setExpression("Length", "Params.pocket2_length")
pocket2.Reversed = True

doc.recompute()
